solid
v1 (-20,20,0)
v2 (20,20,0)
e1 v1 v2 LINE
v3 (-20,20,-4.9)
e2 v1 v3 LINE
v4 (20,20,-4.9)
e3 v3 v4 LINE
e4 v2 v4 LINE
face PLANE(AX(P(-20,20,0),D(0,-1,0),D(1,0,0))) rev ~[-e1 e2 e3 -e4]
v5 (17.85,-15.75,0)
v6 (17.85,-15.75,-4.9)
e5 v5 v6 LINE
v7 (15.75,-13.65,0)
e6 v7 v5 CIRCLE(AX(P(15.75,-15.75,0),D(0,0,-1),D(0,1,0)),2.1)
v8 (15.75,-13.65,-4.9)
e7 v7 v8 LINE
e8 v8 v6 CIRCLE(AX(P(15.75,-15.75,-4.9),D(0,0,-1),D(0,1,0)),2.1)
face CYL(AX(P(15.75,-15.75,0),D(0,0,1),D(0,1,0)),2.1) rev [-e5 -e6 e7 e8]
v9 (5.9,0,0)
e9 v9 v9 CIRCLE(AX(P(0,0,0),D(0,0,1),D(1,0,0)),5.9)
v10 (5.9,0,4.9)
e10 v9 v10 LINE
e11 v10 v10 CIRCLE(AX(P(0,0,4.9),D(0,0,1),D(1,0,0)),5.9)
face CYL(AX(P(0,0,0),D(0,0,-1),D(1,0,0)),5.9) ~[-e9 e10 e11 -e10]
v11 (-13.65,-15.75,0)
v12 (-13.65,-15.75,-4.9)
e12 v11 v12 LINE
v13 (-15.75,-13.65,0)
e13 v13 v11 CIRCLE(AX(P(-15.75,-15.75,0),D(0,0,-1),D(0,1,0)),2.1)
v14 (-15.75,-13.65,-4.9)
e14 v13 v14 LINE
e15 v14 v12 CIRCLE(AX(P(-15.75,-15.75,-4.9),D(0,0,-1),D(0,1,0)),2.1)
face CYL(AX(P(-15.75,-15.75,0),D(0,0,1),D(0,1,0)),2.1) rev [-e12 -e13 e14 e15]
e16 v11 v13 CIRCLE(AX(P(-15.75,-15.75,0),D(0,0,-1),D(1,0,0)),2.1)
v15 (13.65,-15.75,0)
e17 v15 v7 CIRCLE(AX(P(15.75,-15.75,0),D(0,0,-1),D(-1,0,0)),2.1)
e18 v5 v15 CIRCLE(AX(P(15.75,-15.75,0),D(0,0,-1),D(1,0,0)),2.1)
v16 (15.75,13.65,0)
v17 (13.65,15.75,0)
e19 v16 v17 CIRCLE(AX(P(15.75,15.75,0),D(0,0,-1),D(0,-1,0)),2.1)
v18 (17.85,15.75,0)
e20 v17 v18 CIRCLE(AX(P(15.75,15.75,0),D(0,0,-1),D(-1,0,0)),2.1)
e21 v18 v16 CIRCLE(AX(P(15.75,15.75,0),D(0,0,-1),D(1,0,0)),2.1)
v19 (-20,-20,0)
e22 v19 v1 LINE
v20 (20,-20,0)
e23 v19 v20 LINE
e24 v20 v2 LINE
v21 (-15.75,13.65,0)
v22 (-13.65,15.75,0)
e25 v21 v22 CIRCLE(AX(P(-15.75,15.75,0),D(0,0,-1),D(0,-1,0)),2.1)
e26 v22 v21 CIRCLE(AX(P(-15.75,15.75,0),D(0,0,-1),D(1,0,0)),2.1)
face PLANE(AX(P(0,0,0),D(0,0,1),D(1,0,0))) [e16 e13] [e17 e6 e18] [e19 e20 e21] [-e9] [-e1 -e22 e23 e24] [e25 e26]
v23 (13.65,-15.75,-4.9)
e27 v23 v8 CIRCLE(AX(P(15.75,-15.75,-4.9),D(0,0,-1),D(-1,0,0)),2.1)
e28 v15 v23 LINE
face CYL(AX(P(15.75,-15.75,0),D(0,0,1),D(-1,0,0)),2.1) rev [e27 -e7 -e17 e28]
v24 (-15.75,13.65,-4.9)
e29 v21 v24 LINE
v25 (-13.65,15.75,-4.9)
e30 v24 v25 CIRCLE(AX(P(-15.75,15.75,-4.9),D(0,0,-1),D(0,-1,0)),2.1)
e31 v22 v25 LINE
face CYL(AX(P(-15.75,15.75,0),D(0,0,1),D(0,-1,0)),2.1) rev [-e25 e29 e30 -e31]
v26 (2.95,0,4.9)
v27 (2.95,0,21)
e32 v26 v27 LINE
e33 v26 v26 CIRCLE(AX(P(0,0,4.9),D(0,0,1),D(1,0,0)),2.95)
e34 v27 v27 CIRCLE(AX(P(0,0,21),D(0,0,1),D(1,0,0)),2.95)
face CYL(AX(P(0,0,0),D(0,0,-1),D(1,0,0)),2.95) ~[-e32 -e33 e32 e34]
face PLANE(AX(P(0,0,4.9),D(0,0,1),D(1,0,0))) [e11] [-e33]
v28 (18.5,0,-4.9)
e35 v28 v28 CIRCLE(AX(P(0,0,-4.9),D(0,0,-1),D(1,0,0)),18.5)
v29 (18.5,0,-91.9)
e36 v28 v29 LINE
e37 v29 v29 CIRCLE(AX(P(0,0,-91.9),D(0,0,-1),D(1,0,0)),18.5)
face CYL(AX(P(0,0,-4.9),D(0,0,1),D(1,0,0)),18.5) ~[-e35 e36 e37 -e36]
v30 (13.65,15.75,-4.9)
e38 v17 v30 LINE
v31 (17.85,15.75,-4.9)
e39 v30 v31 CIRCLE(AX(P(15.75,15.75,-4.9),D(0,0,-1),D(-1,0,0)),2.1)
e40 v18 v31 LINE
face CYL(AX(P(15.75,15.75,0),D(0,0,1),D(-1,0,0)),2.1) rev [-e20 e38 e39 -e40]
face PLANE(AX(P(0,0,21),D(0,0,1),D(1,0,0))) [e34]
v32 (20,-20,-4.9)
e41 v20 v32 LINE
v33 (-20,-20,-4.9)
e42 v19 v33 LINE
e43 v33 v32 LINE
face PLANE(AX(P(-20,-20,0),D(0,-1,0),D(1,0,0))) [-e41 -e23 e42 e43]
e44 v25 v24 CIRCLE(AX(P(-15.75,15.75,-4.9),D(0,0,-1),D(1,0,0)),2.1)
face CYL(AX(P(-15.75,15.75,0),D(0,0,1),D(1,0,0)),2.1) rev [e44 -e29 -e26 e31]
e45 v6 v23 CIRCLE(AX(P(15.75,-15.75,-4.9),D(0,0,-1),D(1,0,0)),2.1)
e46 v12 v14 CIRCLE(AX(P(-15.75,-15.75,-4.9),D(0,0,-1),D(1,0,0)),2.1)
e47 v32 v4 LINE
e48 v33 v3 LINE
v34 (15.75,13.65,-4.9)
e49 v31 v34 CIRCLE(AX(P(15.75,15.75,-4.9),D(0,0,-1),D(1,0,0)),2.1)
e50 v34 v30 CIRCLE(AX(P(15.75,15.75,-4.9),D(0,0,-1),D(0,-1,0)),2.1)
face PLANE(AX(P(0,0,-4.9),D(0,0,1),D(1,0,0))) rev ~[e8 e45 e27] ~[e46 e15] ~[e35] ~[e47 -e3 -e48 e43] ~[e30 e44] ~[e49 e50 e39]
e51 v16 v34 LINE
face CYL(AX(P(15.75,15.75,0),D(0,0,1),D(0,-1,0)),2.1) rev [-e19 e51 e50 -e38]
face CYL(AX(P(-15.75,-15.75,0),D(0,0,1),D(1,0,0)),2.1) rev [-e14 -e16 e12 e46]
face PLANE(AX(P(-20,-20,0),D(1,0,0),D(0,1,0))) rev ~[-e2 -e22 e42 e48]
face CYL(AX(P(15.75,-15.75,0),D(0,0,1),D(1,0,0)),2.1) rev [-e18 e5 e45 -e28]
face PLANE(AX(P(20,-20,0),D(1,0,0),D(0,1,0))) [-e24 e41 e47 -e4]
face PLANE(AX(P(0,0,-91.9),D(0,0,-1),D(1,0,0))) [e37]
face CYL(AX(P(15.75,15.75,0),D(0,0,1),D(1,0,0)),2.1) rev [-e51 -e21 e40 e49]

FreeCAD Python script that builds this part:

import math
import FreeCAD as App
import Part
import Sketcher
from FreeCAD import Vector
Q = App.Units.Quantity


def add_polygon(sketch, points):
    """Adds a closed chain of lines whose ends are joined by coincident constraints."""
    first, n = sketch.GeometryCount, len(points)
    for a, b in zip(points, points[1:] + points[:1]):
        sketch.addGeometry(Part.LineSegment(App.Vector(*a, 0), App.Vector(*b, 0)), False)
    for i in range(n):
        sketch.addConstraint(Sketcher.Constraint("Coincident", first + i, 2, first + (i + 1) % n, 1))

doc = App.newDocument("Part")
body = doc.addObject("PartDesign::Body", "Body")

sketch1 = body.newObject("Sketcher::SketchObject", "Sketch")
sketch1.AttachmentSupport = (doc.getObject("XY_Plane"), [""])
sketch1.MapMode = "FlatFace"
add_polygon(sketch1, [(-20, 20), (-20, -20), (20, -20), (20, 20)])
sketch1.addGeometry(Part.ArcOfCircle(Part.Circle(Vector(-15.75, -15.75, 0), Vector(0, 0, 1), 2.1), math.radians(90), math.radians(360)), False)
sketch1.addGeometry(Part.ArcOfCircle(Part.Circle(Vector(-15.75, -15.75, 0), Vector(0, 0, 1), 2.1), math.radians(0), math.radians(90)), False)
sketch1.addGeometry(Part.ArcOfCircle(Part.Circle(Vector(15.75, -15.75, 0), Vector(0, 0, 1), 2.1), math.radians(180), math.radians(360)), False)
sketch1.addGeometry(Part.ArcOfCircle(Part.Circle(Vector(15.75, -15.75, 0), Vector(0, 0, 1), 2.1), math.radians(90), math.radians(180)), False)
sketch1.addGeometry(Part.ArcOfCircle(Part.Circle(Vector(15.75, -15.75, 0), Vector(0, 0, 1), 2.1), math.radians(0), math.radians(90)), False)
sketch1.addGeometry(Part.ArcOfCircle(Part.Circle(Vector(-15.75, 15.75, 0), Vector(0, 0, 1), 2.1), math.radians(0), math.radians(270)), False)
sketch1.addGeometry(Part.ArcOfCircle(Part.Circle(Vector(-15.75, 15.75, 0), Vector(0, 0, 1), 2.1), math.radians(-90), math.radians(0)), False)
sketch1.addGeometry(Part.ArcOfCircle(Part.Circle(Vector(15.75, 15.75, 0), Vector(0, 0, 1), 2.1), math.radians(-90), math.radians(0)), False)
sketch1.addGeometry(Part.ArcOfCircle(Part.Circle(Vector(15.75, 15.75, 0), Vector(0, 0, 1), 2.1), math.radians(180), math.radians(270)), False)
sketch1.addGeometry(Part.ArcOfCircle(Part.Circle(Vector(15.75, 15.75, 0), Vector(0, 0, 1), 2.1), math.radians(0), math.radians(180)), False)
sketch1.addConstraint(Sketcher.Constraint("Tangent", 4, 1, 5, 2))
sketch1.addConstraint(Sketcher.Constraint("Coincident", 5, 1, 4, 2))
sketch1.addConstraint(Sketcher.Constraint("Tangent", 6, 1, 7, 2))
sketch1.addConstraint(Sketcher.Constraint("Tangent", 7, 1, 8, 2))
sketch1.addConstraint(Sketcher.Constraint("Tangent", 8, 1, 6, 2))
sketch1.addConstraint(Sketcher.Constraint("Tangent", 9, 1, 10, 2))
sketch1.addConstraint(Sketcher.Constraint("Coincident", 10, 1, 9, 2))
sketch1.addConstraint(Sketcher.Constraint("Tangent", 11, 1, 12, 2))
sketch1.addConstraint(Sketcher.Constraint("Tangent", 12, 1, 13, 2))
sketch1.addConstraint(Sketcher.Constraint("Tangent", 13, 1, 11, 2))
sketch1.addConstraint(Sketcher.Constraint("Vertical", 0))
sketch1.addConstraint(Sketcher.Constraint("Horizontal", 1))
sketch1.addConstraint(Sketcher.Constraint("Vertical", 2))
sketch1.addConstraint(Sketcher.Constraint("Horizontal", 3))
sketch1.addConstraint(Sketcher.Constraint("Equal", 5, 6))
sketch1.addConstraint(Sketcher.Constraint("Equal", 8, 9))
sketch1.addConstraint(Sketcher.Constraint("Equal", 10, 11))
sketch1.addConstraint(Sketcher.Constraint("Symmetric", 6, 3, 9, 3, -1, 1))
sketch1.addConstraint(Sketcher.Constraint("Symmetric", 4, 3, 11, 3, -1, 1))
sketch1.addConstraint(Sketcher.Constraint("Symmetric", 0, 2, 2, 2, -1, 1))
sketch1.addConstraint(Sketcher.Constraint("Symmetric", 4, 3, 6, 3, -2))
sketch1.addConstraint(Sketcher.Constraint("Horizontal", 8, 3, 5, 1))
sketch1.addConstraint(Sketcher.Constraint("Horizontal", 5, 1, 6, 1))
sketch1.addConstraint(Sketcher.Constraint("Horizontal", 6, 1, 8, 1))
sketch1.addConstraint(Sketcher.Constraint("Horizontal", 13, 3, 9, 1))
sketch1.addConstraint(Sketcher.Constraint("Horizontal", 9, 1, 12, 1))
sketch1.addConstraint(Sketcher.Constraint("Horizontal", 12, 1, 13, 1))
sketch1.addConstraint(Sketcher.Constraint("Vertical", 10, 3, 4, 1))
sketch1.addConstraint(Sketcher.Constraint("Vertical", 13, 3, 7, 1))
sketch1.addConstraint(Sketcher.Constraint("Vertical", 4, 1, 10, 1))
sketch1.addConstraint(Sketcher.Constraint("Vertical", 7, 1, 11, 1))
sketch1.addConstraint(Sketcher.Constraint("Equal", 3, 0))
sketch1.addConstraint(Sketcher.Constraint("Radius", 4, Q("2.1 mm")))
sketch1.addConstraint(Sketcher.Constraint("DistanceX", 1, 1, 1, 2, Q("40 mm")))
sketch1.addConstraint(Sketcher.Constraint("DistanceX", 4, 3, 6, 3, Q("31.5 mm")))
sketch1.addConstraint(Sketcher.Constraint("DistanceY", 4, 3, 9, 3, Q("31.5 mm")))
pad1 = body.newObject("PartDesign::Pad", "Pad")
pad1.Profile = sketch1
pad1.Length = 4.9
pad1.Reversed = True

sketch2 = body.newObject("Sketcher::SketchObject", "Sketch001")
sketch2.AttachmentSupport = (doc.getObject("XY_Plane"), [""])
sketch2.MapMode = "FlatFace"
sketch2.addGeometry(Part.Circle(Vector(0, 0, 0), Vector(0, 0, 1), 2.95), False)
sketch2.addConstraint(Sketcher.Constraint("Coincident", 0, 3, -1, 1))
sketch2.addConstraint(Sketcher.Constraint("Diameter", 0, Q("5.9 mm")))
pad2 = body.newObject("PartDesign::Pad", "Pad001")
pad2.Profile = sketch2
pad2.Length = 21

sketch3 = body.newObject("Sketcher::SketchObject", "Sketch002")
sketch3.AttachmentSupport = (doc.getObject("XY_Plane"), [""])
sketch3.MapMode = "FlatFace"
sketch3.addGeometry(Part.Circle(Vector(0, 0, 0), Vector(0, 0, 1), 5.9), False)
sketch3.addGeometry(Part.Circle(Vector(0, 0, 0), Vector(0, 0, 1), 2.95), False)
sketch3.addConstraint(Sketcher.Constraint("Coincident", 0, 3, -1, 1))
sketch3.addConstraint(Sketcher.Constraint("Coincident", 1, 3, -1, 1))
sketch3.addConstraint(Sketcher.Constraint("Diameter", 0, Q("11.8 mm")))
sketch3.addConstraint(Sketcher.Constraint("Diameter", 1, Q("5.9 mm")))
pad3 = body.newObject("PartDesign::Pad", "Pad002")
pad3.Profile = sketch3
pad3.Length = 4.9

sketch4 = body.newObject("Sketcher::SketchObject", "Sketch003")
sketch4.AttachmentSupport = (doc.getObject("XY_Plane"), [""])
sketch4.MapMode = "FlatFace"
sketch4.AttachmentOffset = App.Placement(Vector(0, 0, -4.9), App.Rotation())
sketch4.addGeometry(Part.Circle(Vector(0, 0, 0), Vector(0, 0, 1), 18.5), False)
sketch4.addConstraint(Sketcher.Constraint("Coincident", 0, 3, -1, 1))
sketch4.addConstraint(Sketcher.Constraint("Diameter", 0, Q("37 mm")))
pad4 = body.newObject("PartDesign::Pad", "Pad003")
pad4.Profile = sketch4
pad4.Length = 87
pad4.Reversed = True

doc.recompute()
